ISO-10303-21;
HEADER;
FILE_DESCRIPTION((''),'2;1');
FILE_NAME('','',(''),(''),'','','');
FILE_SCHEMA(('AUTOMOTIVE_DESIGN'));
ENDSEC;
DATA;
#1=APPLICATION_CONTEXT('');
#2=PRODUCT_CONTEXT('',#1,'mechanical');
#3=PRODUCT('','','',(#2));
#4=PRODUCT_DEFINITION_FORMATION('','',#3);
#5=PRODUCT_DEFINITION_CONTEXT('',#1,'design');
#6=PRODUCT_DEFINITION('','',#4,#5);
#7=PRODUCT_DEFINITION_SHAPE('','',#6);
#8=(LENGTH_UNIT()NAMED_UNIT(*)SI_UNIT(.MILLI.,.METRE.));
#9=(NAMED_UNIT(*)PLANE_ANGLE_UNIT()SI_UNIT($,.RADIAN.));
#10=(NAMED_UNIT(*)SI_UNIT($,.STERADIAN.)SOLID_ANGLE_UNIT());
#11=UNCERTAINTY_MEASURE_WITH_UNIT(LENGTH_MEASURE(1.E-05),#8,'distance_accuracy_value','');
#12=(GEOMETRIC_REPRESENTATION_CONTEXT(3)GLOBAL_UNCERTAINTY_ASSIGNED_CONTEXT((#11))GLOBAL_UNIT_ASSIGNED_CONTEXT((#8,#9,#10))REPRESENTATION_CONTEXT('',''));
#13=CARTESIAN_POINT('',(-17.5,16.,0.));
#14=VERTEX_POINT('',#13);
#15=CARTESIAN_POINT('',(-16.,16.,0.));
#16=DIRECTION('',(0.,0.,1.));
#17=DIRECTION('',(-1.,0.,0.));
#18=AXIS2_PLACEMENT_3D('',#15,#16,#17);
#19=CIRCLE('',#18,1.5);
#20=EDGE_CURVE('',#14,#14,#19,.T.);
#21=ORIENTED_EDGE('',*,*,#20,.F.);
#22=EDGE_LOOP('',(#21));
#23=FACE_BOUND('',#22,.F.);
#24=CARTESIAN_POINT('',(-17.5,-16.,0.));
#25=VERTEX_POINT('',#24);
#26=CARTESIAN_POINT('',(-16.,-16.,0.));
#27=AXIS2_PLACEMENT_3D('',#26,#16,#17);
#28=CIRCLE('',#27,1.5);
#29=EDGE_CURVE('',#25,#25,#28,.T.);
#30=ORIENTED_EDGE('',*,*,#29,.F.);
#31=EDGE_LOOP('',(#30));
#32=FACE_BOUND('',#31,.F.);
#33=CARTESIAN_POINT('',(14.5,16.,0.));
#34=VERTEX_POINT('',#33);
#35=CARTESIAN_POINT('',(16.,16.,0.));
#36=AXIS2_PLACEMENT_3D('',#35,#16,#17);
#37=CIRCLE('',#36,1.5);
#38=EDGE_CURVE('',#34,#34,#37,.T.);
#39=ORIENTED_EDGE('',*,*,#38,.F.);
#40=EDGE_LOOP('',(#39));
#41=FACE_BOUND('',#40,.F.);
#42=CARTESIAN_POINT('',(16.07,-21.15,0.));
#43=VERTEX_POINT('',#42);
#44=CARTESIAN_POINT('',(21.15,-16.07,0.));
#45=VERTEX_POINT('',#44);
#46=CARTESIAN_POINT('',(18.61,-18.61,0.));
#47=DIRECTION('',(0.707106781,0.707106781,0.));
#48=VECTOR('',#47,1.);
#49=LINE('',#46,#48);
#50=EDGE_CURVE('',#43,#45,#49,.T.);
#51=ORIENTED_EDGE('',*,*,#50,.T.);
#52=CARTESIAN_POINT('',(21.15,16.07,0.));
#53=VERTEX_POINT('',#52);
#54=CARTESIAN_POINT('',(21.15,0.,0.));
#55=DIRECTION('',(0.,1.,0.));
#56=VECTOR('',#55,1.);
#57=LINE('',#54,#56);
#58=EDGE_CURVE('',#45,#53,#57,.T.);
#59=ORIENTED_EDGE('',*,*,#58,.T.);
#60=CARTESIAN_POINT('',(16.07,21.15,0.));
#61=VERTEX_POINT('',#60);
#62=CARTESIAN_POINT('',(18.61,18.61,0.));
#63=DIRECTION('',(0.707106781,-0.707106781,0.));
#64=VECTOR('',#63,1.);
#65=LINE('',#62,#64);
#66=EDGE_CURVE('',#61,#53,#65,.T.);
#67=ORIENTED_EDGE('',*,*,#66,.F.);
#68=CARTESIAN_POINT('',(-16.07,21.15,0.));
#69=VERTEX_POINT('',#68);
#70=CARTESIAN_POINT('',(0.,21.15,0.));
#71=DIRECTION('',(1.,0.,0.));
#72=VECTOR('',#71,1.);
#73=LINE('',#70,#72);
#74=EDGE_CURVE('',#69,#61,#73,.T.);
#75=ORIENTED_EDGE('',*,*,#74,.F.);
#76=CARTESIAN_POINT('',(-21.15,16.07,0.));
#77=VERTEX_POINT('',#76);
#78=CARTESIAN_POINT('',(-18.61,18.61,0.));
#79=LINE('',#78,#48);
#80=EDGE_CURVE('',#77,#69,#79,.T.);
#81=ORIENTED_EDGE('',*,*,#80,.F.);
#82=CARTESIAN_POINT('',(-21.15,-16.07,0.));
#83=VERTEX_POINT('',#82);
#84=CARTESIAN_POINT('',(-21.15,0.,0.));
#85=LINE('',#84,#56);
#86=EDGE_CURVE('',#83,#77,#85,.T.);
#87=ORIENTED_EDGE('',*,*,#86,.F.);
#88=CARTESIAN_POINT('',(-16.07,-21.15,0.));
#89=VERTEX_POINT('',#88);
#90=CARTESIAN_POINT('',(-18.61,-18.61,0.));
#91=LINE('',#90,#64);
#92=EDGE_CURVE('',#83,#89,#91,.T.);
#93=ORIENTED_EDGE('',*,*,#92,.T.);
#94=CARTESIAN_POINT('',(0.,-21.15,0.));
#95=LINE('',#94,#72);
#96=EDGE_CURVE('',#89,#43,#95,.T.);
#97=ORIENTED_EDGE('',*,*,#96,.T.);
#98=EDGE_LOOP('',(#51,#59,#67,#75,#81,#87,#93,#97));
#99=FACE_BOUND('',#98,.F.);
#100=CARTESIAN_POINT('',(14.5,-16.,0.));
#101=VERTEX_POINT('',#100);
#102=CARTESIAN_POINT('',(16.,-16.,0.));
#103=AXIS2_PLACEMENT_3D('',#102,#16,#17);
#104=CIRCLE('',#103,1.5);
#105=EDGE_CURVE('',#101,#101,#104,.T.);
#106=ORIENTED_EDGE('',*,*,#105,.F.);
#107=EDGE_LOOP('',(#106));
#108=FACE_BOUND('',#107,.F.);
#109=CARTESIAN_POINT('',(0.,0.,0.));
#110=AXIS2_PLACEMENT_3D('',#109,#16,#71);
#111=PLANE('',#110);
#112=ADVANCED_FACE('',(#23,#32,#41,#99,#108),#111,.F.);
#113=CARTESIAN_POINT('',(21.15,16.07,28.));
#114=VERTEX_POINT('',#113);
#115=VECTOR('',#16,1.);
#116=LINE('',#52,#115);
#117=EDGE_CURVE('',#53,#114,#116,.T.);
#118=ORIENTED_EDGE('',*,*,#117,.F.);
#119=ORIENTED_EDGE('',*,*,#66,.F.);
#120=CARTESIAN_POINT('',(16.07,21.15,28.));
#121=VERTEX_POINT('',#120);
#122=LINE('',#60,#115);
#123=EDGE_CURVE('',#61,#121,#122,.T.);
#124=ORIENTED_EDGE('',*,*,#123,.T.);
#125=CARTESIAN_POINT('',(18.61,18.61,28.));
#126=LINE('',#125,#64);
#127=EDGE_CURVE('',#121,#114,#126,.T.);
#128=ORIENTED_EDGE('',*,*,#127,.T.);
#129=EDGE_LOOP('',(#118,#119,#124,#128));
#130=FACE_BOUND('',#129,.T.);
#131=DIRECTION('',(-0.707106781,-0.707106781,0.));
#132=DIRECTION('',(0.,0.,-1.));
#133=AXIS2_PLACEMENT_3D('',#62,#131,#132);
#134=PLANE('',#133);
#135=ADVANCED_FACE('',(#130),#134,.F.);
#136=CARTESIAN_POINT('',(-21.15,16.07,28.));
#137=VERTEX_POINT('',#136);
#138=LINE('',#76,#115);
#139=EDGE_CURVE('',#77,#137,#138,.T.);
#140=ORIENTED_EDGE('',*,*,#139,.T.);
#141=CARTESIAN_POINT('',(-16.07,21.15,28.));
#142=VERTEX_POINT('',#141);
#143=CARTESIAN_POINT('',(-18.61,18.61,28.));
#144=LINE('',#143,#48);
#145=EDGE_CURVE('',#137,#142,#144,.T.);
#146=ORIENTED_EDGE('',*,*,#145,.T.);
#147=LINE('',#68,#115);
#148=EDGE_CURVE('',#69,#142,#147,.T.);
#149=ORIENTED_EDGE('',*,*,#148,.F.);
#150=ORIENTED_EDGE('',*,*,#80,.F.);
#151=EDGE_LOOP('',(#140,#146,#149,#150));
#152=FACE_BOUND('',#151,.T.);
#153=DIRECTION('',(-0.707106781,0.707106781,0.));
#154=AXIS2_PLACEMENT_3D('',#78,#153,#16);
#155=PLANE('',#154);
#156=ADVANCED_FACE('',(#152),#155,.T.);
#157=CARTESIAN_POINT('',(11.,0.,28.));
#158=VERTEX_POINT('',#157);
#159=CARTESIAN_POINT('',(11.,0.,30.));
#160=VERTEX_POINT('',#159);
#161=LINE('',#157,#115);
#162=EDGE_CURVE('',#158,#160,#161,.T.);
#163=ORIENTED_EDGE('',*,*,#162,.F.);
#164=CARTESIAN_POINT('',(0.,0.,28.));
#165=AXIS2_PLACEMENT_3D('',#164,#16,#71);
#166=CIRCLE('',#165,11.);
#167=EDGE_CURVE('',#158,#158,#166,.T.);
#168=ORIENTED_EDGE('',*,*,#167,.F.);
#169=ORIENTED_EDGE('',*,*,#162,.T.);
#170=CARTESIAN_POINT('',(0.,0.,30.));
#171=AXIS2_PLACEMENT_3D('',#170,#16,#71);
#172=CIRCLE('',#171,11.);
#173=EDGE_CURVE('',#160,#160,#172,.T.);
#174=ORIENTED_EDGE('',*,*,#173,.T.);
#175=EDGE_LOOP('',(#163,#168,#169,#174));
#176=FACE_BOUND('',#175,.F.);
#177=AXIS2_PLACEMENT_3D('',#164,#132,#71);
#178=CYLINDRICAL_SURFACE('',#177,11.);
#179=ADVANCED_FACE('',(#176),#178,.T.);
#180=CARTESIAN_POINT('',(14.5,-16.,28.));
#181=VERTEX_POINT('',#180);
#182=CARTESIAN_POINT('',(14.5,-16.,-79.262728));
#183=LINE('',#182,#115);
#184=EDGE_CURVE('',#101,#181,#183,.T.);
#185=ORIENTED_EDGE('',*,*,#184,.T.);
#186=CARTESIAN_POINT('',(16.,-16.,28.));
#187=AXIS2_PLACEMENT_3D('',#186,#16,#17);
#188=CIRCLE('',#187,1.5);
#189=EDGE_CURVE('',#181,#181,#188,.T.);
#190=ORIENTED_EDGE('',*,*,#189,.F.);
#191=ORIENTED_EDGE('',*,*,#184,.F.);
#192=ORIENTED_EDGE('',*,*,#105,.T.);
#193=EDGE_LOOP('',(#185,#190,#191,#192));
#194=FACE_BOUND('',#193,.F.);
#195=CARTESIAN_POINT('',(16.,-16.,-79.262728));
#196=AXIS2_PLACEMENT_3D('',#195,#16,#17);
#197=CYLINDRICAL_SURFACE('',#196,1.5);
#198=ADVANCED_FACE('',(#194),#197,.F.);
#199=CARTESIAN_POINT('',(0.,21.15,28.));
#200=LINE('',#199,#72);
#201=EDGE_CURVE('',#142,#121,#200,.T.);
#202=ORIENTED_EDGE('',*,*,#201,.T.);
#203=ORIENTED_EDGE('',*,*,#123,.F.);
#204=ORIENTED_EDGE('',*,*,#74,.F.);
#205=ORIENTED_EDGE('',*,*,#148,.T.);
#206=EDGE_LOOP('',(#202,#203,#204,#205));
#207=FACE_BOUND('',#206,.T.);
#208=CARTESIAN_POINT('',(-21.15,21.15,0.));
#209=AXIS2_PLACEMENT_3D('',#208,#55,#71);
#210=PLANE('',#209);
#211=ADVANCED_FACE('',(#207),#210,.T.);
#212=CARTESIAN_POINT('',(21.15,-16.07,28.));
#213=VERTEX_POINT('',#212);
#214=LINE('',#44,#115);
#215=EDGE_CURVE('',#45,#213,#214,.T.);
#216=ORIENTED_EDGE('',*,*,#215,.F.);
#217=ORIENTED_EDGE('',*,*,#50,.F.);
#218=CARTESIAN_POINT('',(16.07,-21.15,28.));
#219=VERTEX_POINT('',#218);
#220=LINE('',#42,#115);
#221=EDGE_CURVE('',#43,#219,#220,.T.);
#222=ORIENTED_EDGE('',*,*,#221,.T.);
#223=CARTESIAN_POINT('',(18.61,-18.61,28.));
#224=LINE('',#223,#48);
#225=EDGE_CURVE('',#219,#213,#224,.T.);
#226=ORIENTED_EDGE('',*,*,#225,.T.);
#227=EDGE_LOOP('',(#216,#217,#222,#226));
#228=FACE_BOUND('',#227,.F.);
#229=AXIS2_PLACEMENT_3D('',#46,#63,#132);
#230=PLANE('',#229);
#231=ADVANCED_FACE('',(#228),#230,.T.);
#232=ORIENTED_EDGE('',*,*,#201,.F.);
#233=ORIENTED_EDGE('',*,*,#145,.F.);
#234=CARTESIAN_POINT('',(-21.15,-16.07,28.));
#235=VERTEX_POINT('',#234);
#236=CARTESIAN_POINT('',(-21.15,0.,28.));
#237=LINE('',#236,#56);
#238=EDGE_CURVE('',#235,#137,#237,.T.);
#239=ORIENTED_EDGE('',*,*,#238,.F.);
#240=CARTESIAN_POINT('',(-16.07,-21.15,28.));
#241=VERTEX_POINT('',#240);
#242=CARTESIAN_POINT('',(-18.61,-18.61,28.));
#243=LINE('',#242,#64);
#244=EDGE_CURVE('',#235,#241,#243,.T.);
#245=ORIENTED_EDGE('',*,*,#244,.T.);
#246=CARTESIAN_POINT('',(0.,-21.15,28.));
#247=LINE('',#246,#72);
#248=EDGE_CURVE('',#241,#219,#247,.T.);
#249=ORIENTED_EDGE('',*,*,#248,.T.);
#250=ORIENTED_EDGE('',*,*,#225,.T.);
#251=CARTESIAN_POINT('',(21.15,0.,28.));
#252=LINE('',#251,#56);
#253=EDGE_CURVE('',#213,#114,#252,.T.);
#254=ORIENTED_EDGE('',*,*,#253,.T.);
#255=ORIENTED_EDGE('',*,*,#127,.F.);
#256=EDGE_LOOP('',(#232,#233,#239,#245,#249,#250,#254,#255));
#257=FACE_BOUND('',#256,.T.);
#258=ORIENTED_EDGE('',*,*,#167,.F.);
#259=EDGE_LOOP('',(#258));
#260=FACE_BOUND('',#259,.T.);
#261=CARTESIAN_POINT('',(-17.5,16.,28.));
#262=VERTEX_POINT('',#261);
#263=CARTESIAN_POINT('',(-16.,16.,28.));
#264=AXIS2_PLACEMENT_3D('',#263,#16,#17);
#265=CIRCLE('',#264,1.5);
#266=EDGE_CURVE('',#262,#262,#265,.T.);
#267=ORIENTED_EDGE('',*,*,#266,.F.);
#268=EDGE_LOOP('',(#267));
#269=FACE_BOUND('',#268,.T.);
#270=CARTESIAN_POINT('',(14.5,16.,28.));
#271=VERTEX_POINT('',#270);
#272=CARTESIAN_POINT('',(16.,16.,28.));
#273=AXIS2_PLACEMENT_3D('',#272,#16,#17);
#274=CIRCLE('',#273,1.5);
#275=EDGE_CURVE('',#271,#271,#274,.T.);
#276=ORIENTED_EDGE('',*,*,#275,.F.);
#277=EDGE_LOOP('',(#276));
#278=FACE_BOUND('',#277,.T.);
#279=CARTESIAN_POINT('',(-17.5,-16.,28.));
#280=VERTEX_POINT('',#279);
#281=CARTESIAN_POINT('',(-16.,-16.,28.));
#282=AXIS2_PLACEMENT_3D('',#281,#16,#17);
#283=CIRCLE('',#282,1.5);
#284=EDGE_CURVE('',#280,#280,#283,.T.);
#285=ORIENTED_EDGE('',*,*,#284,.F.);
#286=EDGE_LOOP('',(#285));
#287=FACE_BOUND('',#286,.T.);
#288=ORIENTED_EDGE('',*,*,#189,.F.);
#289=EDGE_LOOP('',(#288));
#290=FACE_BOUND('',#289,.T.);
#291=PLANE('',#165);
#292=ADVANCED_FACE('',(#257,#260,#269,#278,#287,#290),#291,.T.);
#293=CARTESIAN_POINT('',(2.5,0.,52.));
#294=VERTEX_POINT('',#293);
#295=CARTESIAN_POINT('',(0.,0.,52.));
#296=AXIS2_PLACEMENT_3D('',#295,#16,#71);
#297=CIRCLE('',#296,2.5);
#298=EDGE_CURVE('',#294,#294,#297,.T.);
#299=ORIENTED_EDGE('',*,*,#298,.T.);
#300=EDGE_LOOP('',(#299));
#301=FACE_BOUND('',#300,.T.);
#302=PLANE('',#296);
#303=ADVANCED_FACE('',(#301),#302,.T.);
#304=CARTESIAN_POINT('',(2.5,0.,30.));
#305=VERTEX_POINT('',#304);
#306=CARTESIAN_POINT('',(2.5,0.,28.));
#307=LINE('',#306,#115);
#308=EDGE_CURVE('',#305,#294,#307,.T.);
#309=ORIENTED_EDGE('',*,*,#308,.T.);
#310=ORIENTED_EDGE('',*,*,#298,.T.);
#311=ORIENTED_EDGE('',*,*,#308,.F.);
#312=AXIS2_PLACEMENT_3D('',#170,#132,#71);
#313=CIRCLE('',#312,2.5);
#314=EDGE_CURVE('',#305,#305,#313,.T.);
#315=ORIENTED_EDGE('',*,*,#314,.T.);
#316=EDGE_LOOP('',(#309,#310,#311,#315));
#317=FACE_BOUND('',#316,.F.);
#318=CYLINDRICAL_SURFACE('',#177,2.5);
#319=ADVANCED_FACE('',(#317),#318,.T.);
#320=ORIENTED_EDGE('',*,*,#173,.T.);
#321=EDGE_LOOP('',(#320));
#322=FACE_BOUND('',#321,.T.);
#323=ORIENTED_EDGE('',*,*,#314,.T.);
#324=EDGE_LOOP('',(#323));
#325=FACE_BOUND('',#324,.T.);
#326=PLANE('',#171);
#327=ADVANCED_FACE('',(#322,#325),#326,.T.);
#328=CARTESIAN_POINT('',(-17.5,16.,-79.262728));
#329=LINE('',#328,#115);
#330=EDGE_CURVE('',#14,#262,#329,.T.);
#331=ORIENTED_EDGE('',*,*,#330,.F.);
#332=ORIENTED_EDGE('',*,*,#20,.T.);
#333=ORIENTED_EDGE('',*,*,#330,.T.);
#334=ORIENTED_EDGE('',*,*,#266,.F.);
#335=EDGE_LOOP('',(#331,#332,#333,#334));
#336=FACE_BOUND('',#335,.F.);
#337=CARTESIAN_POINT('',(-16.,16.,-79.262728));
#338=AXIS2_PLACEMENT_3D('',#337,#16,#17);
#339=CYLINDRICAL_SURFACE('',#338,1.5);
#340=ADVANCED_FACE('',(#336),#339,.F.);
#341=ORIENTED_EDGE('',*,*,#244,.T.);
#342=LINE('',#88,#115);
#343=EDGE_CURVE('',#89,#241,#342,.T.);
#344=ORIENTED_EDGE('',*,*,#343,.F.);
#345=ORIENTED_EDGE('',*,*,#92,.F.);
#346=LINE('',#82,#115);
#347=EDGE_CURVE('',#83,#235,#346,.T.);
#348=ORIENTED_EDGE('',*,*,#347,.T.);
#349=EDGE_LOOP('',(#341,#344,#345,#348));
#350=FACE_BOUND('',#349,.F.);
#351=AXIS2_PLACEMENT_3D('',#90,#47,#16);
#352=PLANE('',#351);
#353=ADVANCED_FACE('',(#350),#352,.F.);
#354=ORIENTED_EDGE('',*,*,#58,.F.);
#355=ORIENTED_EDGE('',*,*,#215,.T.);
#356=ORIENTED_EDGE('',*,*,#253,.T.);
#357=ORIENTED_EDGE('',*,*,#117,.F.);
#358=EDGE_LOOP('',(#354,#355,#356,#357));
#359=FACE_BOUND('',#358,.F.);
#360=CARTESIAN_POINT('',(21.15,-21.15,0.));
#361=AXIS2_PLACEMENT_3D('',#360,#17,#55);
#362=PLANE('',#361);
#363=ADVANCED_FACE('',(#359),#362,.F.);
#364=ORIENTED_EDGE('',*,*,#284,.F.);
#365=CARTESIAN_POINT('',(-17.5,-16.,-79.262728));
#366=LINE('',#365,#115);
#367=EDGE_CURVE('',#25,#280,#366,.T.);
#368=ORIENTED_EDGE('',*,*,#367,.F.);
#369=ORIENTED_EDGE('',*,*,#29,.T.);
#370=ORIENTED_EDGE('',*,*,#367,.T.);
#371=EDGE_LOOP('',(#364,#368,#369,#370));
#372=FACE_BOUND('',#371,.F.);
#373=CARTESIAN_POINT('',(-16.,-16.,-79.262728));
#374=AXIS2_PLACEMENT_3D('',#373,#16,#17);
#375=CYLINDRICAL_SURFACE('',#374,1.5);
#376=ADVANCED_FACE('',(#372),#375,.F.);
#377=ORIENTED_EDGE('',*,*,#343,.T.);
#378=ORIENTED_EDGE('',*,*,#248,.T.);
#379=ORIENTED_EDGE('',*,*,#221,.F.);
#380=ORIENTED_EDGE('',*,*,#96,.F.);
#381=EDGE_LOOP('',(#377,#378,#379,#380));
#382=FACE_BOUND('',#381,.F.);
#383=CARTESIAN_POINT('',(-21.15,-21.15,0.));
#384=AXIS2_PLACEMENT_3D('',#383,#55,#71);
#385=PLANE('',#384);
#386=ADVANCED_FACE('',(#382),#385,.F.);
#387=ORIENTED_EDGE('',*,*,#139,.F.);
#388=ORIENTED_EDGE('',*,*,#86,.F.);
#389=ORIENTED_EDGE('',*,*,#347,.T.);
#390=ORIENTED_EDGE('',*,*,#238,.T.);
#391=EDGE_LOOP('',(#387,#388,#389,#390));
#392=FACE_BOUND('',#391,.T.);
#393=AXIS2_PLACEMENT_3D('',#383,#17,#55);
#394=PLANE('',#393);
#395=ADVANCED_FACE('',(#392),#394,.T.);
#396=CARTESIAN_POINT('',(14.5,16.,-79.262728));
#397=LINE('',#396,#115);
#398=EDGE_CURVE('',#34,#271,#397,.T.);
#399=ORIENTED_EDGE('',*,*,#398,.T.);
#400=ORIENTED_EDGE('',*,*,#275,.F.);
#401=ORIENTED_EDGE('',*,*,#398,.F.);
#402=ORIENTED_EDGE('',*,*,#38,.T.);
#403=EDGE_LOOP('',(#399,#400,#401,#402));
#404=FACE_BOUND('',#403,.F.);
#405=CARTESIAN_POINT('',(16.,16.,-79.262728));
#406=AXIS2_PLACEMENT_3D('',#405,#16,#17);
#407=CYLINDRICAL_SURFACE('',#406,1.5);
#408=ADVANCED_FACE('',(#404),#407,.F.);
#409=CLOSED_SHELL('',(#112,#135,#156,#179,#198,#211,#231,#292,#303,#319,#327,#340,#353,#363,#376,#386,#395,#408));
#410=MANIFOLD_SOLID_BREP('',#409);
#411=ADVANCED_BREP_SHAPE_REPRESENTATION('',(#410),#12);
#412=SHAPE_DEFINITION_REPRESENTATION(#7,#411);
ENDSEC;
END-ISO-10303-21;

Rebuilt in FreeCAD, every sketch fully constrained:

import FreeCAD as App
import Part
import Sketcher
from FreeCAD import Vector
Q = App.Units.Quantity


def edges_at(feature, points):
    """Names of the edges that pass closest to the given points."""
    edges = feature.Shape.Edges
    near = lambda p: min(range(len(edges)), key=lambda i: edges[i].distToShape(Part.Vertex(*p))[0])
    return sorted({f"Edge{near(p) + 1}" for p in points})

doc = App.newDocument("Part")
body = doc.addObject("PartDesign::Body", "Body")

# Sketch on XY plane
sketch1 = body.newObject("Sketcher::SketchObject", "Sketch")
sketch1.AttachmentSupport = (doc.getObject("XY_Plane"), [""])
sketch1.MapMode = "FlatFace"
sketch1.addGeometry(Part.LineSegment(Vector(-21, 21, 0), Vector(-21, -21, 0)), False)
sketch1.addGeometry(Part.LineSegment(Vector(-21, -21, 0), Vector(21, -21, 0)), False)
sketch1.addGeometry(Part.LineSegment(Vector(21, -21, 0), Vector(21, 21, 0)), False)
sketch1.addGeometry(Part.LineSegment(Vector(21, 21, 0), Vector(-21, 21, 0)), False)
sketch1.addConstraint(Sketcher.Constraint("Coincident", 0, 2, 1, 1))
sketch1.addConstraint(Sketcher.Constraint("Coincident", 1, 2, 2, 1))
sketch1.addConstraint(Sketcher.Constraint("Coincident", 2, 2, 3, 1))
sketch1.addConstraint(Sketcher.Constraint("Coincident", 3, 2, 0, 1))
sketch1.addConstraint(Sketcher.Constraint("Vertical", 0))
sketch1.addConstraint(Sketcher.Constraint("Horizontal", 1))
sketch1.addConstraint(Sketcher.Constraint("Vertical", 2))
sketch1.addConstraint(Sketcher.Constraint("Horizontal", 3))
sketch1.addConstraint(Sketcher.Constraint("Symmetric", 0, 2, 2, 2, -1, 1))
sketch1.addConstraint(Sketcher.Constraint("Equal", 3, 0))
sketch1.addConstraint(Sketcher.Constraint("DistanceX", 1, 1, 1, 2, Q("42.3 mm")))
pad1 = body.newObject("PartDesign::Pad", "Pad")
pad1.Profile = sketch1
pad1.Length = 28

# Sketch on XY plane
sketch2 = body.newObject("Sketcher::SketchObject", "Sketch001")
sketch2.AttachmentSupport = (doc.getObject("XY_Plane"), [""])
sketch2.MapMode = "FlatFace"
sketch2.AttachmentOffset = App.Placement(Vector(0, 0, 28), App.Rotation())
sketch2.addGeometry(Part.Circle(Vector(0, 0, 0), Vector(0, 0, 1), 11), False)
sketch2.addConstraint(Sketcher.Constraint("Coincident", 0, 3, -1, 1))
sketch2.addConstraint(Sketcher.Constraint("Diameter", 0, Q("22 mm")))
pad2 = body.newObject("PartDesign::Pad", "Pad001")
pad2.Profile = sketch2
pad2.Length = 2

# Sketch on XY plane
sketch3 = body.newObject("Sketcher::SketchObject", "Sketch002")
sketch3.AttachmentSupport = (doc.getObject("XY_Plane"), [""])
sketch3.MapMode = "FlatFace"
sketch3.AttachmentOffset = App.Placement(Vector(0, 0, 28), App.Rotation())
sketch3.addGeometry(Part.Circle(Vector(0, 0, 0), Vector(0, 0, 1), 2.5), False)
sketch3.addConstraint(Sketcher.Constraint("Coincident", 0, 3, -1, 1))
sketch3.addConstraint(Sketcher.Constraint("Diameter", 0, Q("5 mm")))
pad3 = body.newObject("PartDesign::Pad", "Pad002")
pad3.Profile = sketch3
pad3.Length = 24

# Sketch on XY plane
sketch4 = body.newObject("Sketcher::SketchObject", "Sketch003")
sketch4.AttachmentSupport = (doc.getObject("XY_Plane"), [""])
sketch4.MapMode = "FlatFace"
sketch4.addGeometry(Part.Circle(Vector(-16, -16, 0), Vector(0, 0, 1), 1.5), False)
sketch4.addGeometry(Part.Circle(Vector(16, -16, 0), Vector(0, 0, 1), 1.5), False)
sketch4.addGeometry(Part.Circle(Vector(-16, 16, 0), Vector(0, 0, 1), 1.5), False)
sketch4.addGeometry(Part.Circle(Vector(16, 16, 0), Vector(0, 0, 1), 1.5), False)
sketch4.addConstraint(Sketcher.Constraint("Equal", 0, 1))
sketch4.addConstraint(Sketcher.Constraint("Equal", 1, 2))
sketch4.addConstraint(Sketcher.Constraint("Equal", 2, 3))
sketch4.addConstraint(Sketcher.Constraint("Symmetric", 1, 3, 2, 3, -1, 1))
sketch4.addConstraint(Sketcher.Constraint("Symmetric", 0, 3, 3, 3, -1, 1))
sketch4.addConstraint(Sketcher.Constraint("Symmetric", 0, 3, 1, 3, -2))
sketch4.addConstraint(Sketcher.Constraint("Diameter", 0, Q("3 mm")))
sketch4.addConstraint(Sketcher.Constraint("DistanceX", 0, 3, -1, 1, Q("16 mm")))
sketch4.addConstraint(Sketcher.Constraint("DistanceY", 0, 3, -1, 1, Q("16 mm")))
doc.recompute()
hole = body.newObject("PartDesign::Hole", "Hole")
hole.Profile = sketch4
hole.ThreadType = "None"
hole.Diameter = 3
hole.DepthType = "ThroughAll"
hole.Reversed = True
doc.recompute()

chamfer = body.newObject("PartDesign::Chamfer", "Chamfer")
chamfer.Base = (hole, edges_at(hole, [
    (-21.15, -21.15, 14),
    (21.15, -21.15, 14),
    (21.15, 21.15, 14),
    (-21.15, 21.15, 14),
]))
chamfer.Size = 5.08

doc.recompute()
